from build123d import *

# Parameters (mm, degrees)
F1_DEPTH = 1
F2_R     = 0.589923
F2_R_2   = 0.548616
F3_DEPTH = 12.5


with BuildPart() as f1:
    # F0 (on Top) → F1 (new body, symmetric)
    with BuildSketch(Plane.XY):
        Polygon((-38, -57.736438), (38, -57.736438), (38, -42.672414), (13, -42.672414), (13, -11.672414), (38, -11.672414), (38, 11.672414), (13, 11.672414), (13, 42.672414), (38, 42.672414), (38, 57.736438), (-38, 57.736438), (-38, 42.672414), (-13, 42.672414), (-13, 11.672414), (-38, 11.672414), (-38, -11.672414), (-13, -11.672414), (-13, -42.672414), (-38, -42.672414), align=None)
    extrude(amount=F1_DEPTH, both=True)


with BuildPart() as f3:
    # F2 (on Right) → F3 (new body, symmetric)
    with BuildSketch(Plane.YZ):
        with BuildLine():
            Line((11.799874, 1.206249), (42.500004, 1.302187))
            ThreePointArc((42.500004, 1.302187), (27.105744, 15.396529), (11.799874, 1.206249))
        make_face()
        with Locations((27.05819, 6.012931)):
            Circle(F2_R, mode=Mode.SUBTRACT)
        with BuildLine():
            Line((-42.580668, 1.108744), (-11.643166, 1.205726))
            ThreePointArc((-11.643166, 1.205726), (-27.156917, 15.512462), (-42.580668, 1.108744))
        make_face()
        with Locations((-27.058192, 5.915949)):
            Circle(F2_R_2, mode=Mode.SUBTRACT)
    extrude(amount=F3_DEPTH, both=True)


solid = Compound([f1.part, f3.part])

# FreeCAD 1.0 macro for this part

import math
import FreeCAD as App
import Part
import Sketcher

V = App.Vector

doc = App.newDocument("Part")
body = doc.addObject("PartDesign::Body", "Body")

# Sketch on XY plane
sketch1 = doc.addObject("Sketcher::SketchObject", "Sketch")
body.addObject(sketch1)
sketch1.AttachmentSupport = (doc.XY_Plane, [""])
sketch1.MapMode = "FlatFace"
sketch1.addGeometry(Part.LineSegment(V(-38, -57.736438, 0), V(38, -57.736438, 0)), False)
sketch1.addGeometry(Part.LineSegment(V(38, -57.736438, 0), V(38, -42.672414, 0)), False)
sketch1.addGeometry(Part.LineSegment(V(38, -42.672414, 0), V(13, -42.672414, 0)), False)
sketch1.addGeometry(Part.LineSegment(V(13, -42.672414, 0), V(13, -11.672414, 0)), False)
sketch1.addGeometry(Part.LineSegment(V(13, -11.672414, 0), V(38, -11.672414, 0)), False)
sketch1.addGeometry(Part.LineSegment(V(38, -11.672414, 0), V(38, 11.672414, 0)), False)
sketch1.addGeometry(Part.LineSegment(V(38, 11.672414, 0), V(13, 11.672414, 0)), False)
sketch1.addGeometry(Part.LineSegment(V(13, 11.672414, 0), V(13, 42.672414, 0)), False)
sketch1.addGeometry(Part.LineSegment(V(13, 42.672414, 0), V(38, 42.672414, 0)), False)
sketch1.addGeometry(Part.LineSegment(V(38, 42.672414, 0), V(38, 57.736438, 0)), False)
sketch1.addGeometry(Part.LineSegment(V(38, 57.736438, 0), V(-38, 57.736438, 0)), False)
sketch1.addGeometry(Part.LineSegment(V(-38, 57.736438, 0), V(-38, 42.672414, 0)), False)
sketch1.addGeometry(Part.LineSegment(V(-38, 42.672414, 0), V(-13, 42.672414, 0)), False)
sketch1.addGeometry(Part.LineSegment(V(-13, 42.672414, 0), V(-13, 11.672414, 0)), False)
sketch1.addGeometry(Part.LineSegment(V(-13, 11.672414, 0), V(-38, 11.672414, 0)), False)
sketch1.addGeometry(Part.LineSegment(V(-38, 11.672414, 0), V(-38, -11.672414, 0)), False)
sketch1.addGeometry(Part.LineSegment(V(-38, -11.672414, 0), V(-13, -11.672414, 0)), False)
sketch1.addGeometry(Part.LineSegment(V(-13, -11.672414, 0), V(-13, -42.672414, 0)), False)
sketch1.addGeometry(Part.LineSegment(V(-13, -42.672414, 0), V(-38, -42.672414, 0)), False)
sketch1.addGeometry(Part.LineSegment(V(-38, -42.672414, 0), V(-38, -57.736438, 0)), False)
sketch1.addConstraint(Sketcher.Constraint("Coincident", 0, 2, 1, 1))
sketch1.addConstraint(Sketcher.Constraint("Coincident", 1, 2, 2, 1))
sketch1.addConstraint(Sketcher.Constraint("Coincident", 2, 2, 3, 1))
sketch1.addConstraint(Sketcher.Constraint("Coincident", 3, 2, 4, 1))
sketch1.addConstraint(Sketcher.Constraint("Coincident", 4, 2, 5, 1))
sketch1.addConstraint(Sketcher.Constraint("Coincident", 5, 2, 6, 1))
sketch1.addConstraint(Sketcher.Constraint("Coincident", 6, 2, 7, 1))
sketch1.addConstraint(Sketcher.Constraint("Coincident", 7, 2, 8, 1))
sketch1.addConstraint(Sketcher.Constraint("Coincident", 8, 2, 9, 1))
sketch1.addConstraint(Sketcher.Constraint("Coincident", 9, 2, 10, 1))
sketch1.addConstraint(Sketcher.Constraint("Coincident", 10, 2, 11, 1))
sketch1.addConstraint(Sketcher.Constraint("Coincident", 11, 2, 12, 1))
sketch1.addConstraint(Sketcher.Constraint("Coincident", 12, 2, 13, 1))
sketch1.addConstraint(Sketcher.Constraint("Coincident", 13, 2, 14, 1))
sketch1.addConstraint(Sketcher.Constraint("Coincident", 14, 2, 15, 1))
sketch1.addConstraint(Sketcher.Constraint("Coincident", 15, 2, 16, 1))
sketch1.addConstraint(Sketcher.Constraint("Coincident", 16, 2, 17, 1))
sketch1.addConstraint(Sketcher.Constraint("Coincident", 17, 2, 18, 1))
sketch1.addConstraint(Sketcher.Constraint("Coincident", 18, 2, 19, 1))
sketch1.addConstraint(Sketcher.Constraint("Coincident", 19, 2, 0, 1))
sketch1.addConstraint(Sketcher.Constraint("Horizontal", 0))
sketch1.addConstraint(Sketcher.Constraint("Vertical", 1))
sketch1.addConstraint(Sketcher.Constraint("Horizontal", 2))
sketch1.addConstraint(Sketcher.Constraint("Vertical", 3))
sketch1.addConstraint(Sketcher.Constraint("Horizontal", 4))
sketch1.addConstraint(Sketcher.Constraint("Vertical", 5))
sketch1.addConstraint(Sketcher.Constraint("Horizontal", 6))
sketch1.addConstraint(Sketcher.Constraint("Vertical", 7))
sketch1.addConstraint(Sketcher.Constraint("Horizontal", 8))
sketch1.addConstraint(Sketcher.Constraint("Vertical", 9))
sketch1.addConstraint(Sketcher.Constraint("Horizontal", 10))
sketch1.addConstraint(Sketcher.Constraint("Vertical", 11))
sketch1.addConstraint(Sketcher.Constraint("Horizontal", 12))
sketch1.addConstraint(Sketcher.Constraint("Vertical", 13))
sketch1.addConstraint(Sketcher.Constraint("Horizontal", 14))
sketch1.addConstraint(Sketcher.Constraint("Vertical", 15))
sketch1.addConstraint(Sketcher.Constraint("Horizontal", 16))
sketch1.addConstraint(Sketcher.Constraint("Vertical", 17))
sketch1.addConstraint(Sketcher.Constraint("Horizontal", 18))
sketch1.addConstraint(Sketcher.Constraint("Vertical", 19))
sketch1.addConstraint(Sketcher.Constraint("Symmetric", 0, 2, 10, 2, -1, 1))
sketch1.addConstraint(Sketcher.Constraint("Symmetric", 2, 2, 12, 2, -1, 1))
sketch1.addConstraint(Sketcher.Constraint("Symmetric", 4, 2, 14, 2, -1, 1))
sketch1.addConstraint(Sketcher.Constraint("Symmetric", 6, 2, 16, 2, -1, 1))
sketch1.addConstraint(Sketcher.Constraint("Symmetric", 8, 2, 18, 2, -1, 1))
sketch1.addConstraint(Sketcher.Constraint("Symmetric", 8, 2, 11, 2, -2))
sketch1.addConstraint(Sketcher.Constraint("Symmetric", 6, 2, 13, 2, -2))
sketch1.addConstraint(Sketcher.Constraint("Vertical", 1, 2, 4, 2))
sketch1.addConstraint(Sketcher.Constraint("DistanceX", 0, 1, 0, 2, 76.0))
sketch1.addConstraint(Sketcher.Constraint("DistanceX", 2, 2, 2, 1, 25.0))
sketch1.addConstraint(Sketcher.Constraint("DistanceY", 3, 1, 3, 2, 31.0))
sketch1.addConstraint(Sketcher.Constraint("DistanceY", 1, 1, 1, 2, 15.064024))
sketch1.addConstraint(Sketcher.Constraint("DistanceY", 5, 1, 5, 2, 23.344828))
pad1 = doc.addObject("PartDesign::Pad", "Pad")
body.addObject(pad1)
pad1.Profile = sketch1
pad1.Length = 2
pad1.Midplane = True
body2 = doc.addObject("PartDesign::Body", "Body001")
body2.AllowCompound = True

# Sketch on YZ plane
sketch2 = doc.addObject("Sketcher::SketchObject", "Sketch001")
body2.addObject(sketch2)
sketch2.AttachmentSupport = (doc.getObject("YZ_Plane001"), [""])
sketch2.MapMode = "FlatFace"
sketch2.addGeometry(Part.LineSegment(V(11.799874, 1.206249, 0), V(42.500004, 1.302187, 0)), False)
sketch2.addGeometry(Part.ArcOfCircle(Part.Circle(V(27.153874, -0.005107, 0), V(0, 0, 1), 15.401711), math.radians(4.869113), math.radians(175.488985)), False)
sketch2.addGeometry(Part.Circle(V(27.05819, 6.012931, 0), V(0, 0, 1), 0.589923), False)
sketch2.addGeometry(Part.LineSegment(V(-42.580668, 1.108744, 0), V(-11.643166, 1.205726, 0)), False)
sketch2.addGeometry(Part.ArcOfCircle(Part.Circle(V(-27.108291, 0.000523, 0), V(0, 0, 1), 15.512015), math.radians(4.456074), math.radians(175.903143)), False)
sketch2.addGeometry(Part.Circle(V(-27.058192, 5.915949, 0), V(0, 0, 1), 0.548616), False)
sketch2.addConstraint(Sketcher.Constraint("Coincident", 0, 1, 1, 2))
sketch2.addConstraint(Sketcher.Constraint("Coincident", 1, 1, 0, 2))
sketch2.addConstraint(Sketcher.Constraint("Coincident", 3, 1, 4, 2))
sketch2.addConstraint(Sketcher.Constraint("Coincident", 4, 1, 3, 2))
sketch2.addConstraint(Sketcher.Constraint("Radius", 1, 15.401711))
sketch2.addConstraint(Sketcher.Constraint("Diameter", 2, 1.179846))
sketch2.addConstraint(Sketcher.Constraint("Diameter", 5, 1.097232))
sketch2.addConstraint(Sketcher.Constraint("Radius", 4, 15.512015))
sketch2.addConstraint(Sketcher.Constraint("DistanceX", 0, 1, 1, 3, 15.354))
sketch2.addConstraint(Sketcher.Constraint("DistanceX", 4, 3, 5, 3, 0.050099))
sketch2.addConstraint(Sketcher.Constraint("DistanceY", 0, 1, 5, 3, 4.7097))
sketch2.addConstraint(Sketcher.Constraint("Distance", 0, 30.70028))
sketch2.addConstraint(Sketcher.Constraint("DistanceX", -1, 1, 2, 3, 27.05819))
sketch2.addConstraint(Sketcher.Constraint("DistanceY", -1, 1, 2, 3, 6.012931))
sketch2.addConstraint(Sketcher.Constraint("DistanceX", 4, 3, -1, 1, 27.108291))
sketch2.addConstraint(Sketcher.Constraint("DistanceY", -1, 1, 5, 3, 5.915949))
sketch2.addConstraint(Sketcher.Constraint("DistanceX", 3, 1, -1, 1, 42.580668))
sketch2.addConstraint(Sketcher.Constraint("DistanceY", 1, 3, 4, 3, 0.005631))
sketch2.addConstraint(Sketcher.Constraint("DistanceX", 4, 1, 0, 1, 23.44304))
sketch2.addConstraint(Sketcher.Constraint("Distance", 3, 30.937654))
pad2 = doc.addObject("PartDesign::Pad", "Pad001")
body2.addObject(pad2)
pad2.Profile = sketch2
pad2.Length = 25
pad2.Midplane = True

doc.recompute()
